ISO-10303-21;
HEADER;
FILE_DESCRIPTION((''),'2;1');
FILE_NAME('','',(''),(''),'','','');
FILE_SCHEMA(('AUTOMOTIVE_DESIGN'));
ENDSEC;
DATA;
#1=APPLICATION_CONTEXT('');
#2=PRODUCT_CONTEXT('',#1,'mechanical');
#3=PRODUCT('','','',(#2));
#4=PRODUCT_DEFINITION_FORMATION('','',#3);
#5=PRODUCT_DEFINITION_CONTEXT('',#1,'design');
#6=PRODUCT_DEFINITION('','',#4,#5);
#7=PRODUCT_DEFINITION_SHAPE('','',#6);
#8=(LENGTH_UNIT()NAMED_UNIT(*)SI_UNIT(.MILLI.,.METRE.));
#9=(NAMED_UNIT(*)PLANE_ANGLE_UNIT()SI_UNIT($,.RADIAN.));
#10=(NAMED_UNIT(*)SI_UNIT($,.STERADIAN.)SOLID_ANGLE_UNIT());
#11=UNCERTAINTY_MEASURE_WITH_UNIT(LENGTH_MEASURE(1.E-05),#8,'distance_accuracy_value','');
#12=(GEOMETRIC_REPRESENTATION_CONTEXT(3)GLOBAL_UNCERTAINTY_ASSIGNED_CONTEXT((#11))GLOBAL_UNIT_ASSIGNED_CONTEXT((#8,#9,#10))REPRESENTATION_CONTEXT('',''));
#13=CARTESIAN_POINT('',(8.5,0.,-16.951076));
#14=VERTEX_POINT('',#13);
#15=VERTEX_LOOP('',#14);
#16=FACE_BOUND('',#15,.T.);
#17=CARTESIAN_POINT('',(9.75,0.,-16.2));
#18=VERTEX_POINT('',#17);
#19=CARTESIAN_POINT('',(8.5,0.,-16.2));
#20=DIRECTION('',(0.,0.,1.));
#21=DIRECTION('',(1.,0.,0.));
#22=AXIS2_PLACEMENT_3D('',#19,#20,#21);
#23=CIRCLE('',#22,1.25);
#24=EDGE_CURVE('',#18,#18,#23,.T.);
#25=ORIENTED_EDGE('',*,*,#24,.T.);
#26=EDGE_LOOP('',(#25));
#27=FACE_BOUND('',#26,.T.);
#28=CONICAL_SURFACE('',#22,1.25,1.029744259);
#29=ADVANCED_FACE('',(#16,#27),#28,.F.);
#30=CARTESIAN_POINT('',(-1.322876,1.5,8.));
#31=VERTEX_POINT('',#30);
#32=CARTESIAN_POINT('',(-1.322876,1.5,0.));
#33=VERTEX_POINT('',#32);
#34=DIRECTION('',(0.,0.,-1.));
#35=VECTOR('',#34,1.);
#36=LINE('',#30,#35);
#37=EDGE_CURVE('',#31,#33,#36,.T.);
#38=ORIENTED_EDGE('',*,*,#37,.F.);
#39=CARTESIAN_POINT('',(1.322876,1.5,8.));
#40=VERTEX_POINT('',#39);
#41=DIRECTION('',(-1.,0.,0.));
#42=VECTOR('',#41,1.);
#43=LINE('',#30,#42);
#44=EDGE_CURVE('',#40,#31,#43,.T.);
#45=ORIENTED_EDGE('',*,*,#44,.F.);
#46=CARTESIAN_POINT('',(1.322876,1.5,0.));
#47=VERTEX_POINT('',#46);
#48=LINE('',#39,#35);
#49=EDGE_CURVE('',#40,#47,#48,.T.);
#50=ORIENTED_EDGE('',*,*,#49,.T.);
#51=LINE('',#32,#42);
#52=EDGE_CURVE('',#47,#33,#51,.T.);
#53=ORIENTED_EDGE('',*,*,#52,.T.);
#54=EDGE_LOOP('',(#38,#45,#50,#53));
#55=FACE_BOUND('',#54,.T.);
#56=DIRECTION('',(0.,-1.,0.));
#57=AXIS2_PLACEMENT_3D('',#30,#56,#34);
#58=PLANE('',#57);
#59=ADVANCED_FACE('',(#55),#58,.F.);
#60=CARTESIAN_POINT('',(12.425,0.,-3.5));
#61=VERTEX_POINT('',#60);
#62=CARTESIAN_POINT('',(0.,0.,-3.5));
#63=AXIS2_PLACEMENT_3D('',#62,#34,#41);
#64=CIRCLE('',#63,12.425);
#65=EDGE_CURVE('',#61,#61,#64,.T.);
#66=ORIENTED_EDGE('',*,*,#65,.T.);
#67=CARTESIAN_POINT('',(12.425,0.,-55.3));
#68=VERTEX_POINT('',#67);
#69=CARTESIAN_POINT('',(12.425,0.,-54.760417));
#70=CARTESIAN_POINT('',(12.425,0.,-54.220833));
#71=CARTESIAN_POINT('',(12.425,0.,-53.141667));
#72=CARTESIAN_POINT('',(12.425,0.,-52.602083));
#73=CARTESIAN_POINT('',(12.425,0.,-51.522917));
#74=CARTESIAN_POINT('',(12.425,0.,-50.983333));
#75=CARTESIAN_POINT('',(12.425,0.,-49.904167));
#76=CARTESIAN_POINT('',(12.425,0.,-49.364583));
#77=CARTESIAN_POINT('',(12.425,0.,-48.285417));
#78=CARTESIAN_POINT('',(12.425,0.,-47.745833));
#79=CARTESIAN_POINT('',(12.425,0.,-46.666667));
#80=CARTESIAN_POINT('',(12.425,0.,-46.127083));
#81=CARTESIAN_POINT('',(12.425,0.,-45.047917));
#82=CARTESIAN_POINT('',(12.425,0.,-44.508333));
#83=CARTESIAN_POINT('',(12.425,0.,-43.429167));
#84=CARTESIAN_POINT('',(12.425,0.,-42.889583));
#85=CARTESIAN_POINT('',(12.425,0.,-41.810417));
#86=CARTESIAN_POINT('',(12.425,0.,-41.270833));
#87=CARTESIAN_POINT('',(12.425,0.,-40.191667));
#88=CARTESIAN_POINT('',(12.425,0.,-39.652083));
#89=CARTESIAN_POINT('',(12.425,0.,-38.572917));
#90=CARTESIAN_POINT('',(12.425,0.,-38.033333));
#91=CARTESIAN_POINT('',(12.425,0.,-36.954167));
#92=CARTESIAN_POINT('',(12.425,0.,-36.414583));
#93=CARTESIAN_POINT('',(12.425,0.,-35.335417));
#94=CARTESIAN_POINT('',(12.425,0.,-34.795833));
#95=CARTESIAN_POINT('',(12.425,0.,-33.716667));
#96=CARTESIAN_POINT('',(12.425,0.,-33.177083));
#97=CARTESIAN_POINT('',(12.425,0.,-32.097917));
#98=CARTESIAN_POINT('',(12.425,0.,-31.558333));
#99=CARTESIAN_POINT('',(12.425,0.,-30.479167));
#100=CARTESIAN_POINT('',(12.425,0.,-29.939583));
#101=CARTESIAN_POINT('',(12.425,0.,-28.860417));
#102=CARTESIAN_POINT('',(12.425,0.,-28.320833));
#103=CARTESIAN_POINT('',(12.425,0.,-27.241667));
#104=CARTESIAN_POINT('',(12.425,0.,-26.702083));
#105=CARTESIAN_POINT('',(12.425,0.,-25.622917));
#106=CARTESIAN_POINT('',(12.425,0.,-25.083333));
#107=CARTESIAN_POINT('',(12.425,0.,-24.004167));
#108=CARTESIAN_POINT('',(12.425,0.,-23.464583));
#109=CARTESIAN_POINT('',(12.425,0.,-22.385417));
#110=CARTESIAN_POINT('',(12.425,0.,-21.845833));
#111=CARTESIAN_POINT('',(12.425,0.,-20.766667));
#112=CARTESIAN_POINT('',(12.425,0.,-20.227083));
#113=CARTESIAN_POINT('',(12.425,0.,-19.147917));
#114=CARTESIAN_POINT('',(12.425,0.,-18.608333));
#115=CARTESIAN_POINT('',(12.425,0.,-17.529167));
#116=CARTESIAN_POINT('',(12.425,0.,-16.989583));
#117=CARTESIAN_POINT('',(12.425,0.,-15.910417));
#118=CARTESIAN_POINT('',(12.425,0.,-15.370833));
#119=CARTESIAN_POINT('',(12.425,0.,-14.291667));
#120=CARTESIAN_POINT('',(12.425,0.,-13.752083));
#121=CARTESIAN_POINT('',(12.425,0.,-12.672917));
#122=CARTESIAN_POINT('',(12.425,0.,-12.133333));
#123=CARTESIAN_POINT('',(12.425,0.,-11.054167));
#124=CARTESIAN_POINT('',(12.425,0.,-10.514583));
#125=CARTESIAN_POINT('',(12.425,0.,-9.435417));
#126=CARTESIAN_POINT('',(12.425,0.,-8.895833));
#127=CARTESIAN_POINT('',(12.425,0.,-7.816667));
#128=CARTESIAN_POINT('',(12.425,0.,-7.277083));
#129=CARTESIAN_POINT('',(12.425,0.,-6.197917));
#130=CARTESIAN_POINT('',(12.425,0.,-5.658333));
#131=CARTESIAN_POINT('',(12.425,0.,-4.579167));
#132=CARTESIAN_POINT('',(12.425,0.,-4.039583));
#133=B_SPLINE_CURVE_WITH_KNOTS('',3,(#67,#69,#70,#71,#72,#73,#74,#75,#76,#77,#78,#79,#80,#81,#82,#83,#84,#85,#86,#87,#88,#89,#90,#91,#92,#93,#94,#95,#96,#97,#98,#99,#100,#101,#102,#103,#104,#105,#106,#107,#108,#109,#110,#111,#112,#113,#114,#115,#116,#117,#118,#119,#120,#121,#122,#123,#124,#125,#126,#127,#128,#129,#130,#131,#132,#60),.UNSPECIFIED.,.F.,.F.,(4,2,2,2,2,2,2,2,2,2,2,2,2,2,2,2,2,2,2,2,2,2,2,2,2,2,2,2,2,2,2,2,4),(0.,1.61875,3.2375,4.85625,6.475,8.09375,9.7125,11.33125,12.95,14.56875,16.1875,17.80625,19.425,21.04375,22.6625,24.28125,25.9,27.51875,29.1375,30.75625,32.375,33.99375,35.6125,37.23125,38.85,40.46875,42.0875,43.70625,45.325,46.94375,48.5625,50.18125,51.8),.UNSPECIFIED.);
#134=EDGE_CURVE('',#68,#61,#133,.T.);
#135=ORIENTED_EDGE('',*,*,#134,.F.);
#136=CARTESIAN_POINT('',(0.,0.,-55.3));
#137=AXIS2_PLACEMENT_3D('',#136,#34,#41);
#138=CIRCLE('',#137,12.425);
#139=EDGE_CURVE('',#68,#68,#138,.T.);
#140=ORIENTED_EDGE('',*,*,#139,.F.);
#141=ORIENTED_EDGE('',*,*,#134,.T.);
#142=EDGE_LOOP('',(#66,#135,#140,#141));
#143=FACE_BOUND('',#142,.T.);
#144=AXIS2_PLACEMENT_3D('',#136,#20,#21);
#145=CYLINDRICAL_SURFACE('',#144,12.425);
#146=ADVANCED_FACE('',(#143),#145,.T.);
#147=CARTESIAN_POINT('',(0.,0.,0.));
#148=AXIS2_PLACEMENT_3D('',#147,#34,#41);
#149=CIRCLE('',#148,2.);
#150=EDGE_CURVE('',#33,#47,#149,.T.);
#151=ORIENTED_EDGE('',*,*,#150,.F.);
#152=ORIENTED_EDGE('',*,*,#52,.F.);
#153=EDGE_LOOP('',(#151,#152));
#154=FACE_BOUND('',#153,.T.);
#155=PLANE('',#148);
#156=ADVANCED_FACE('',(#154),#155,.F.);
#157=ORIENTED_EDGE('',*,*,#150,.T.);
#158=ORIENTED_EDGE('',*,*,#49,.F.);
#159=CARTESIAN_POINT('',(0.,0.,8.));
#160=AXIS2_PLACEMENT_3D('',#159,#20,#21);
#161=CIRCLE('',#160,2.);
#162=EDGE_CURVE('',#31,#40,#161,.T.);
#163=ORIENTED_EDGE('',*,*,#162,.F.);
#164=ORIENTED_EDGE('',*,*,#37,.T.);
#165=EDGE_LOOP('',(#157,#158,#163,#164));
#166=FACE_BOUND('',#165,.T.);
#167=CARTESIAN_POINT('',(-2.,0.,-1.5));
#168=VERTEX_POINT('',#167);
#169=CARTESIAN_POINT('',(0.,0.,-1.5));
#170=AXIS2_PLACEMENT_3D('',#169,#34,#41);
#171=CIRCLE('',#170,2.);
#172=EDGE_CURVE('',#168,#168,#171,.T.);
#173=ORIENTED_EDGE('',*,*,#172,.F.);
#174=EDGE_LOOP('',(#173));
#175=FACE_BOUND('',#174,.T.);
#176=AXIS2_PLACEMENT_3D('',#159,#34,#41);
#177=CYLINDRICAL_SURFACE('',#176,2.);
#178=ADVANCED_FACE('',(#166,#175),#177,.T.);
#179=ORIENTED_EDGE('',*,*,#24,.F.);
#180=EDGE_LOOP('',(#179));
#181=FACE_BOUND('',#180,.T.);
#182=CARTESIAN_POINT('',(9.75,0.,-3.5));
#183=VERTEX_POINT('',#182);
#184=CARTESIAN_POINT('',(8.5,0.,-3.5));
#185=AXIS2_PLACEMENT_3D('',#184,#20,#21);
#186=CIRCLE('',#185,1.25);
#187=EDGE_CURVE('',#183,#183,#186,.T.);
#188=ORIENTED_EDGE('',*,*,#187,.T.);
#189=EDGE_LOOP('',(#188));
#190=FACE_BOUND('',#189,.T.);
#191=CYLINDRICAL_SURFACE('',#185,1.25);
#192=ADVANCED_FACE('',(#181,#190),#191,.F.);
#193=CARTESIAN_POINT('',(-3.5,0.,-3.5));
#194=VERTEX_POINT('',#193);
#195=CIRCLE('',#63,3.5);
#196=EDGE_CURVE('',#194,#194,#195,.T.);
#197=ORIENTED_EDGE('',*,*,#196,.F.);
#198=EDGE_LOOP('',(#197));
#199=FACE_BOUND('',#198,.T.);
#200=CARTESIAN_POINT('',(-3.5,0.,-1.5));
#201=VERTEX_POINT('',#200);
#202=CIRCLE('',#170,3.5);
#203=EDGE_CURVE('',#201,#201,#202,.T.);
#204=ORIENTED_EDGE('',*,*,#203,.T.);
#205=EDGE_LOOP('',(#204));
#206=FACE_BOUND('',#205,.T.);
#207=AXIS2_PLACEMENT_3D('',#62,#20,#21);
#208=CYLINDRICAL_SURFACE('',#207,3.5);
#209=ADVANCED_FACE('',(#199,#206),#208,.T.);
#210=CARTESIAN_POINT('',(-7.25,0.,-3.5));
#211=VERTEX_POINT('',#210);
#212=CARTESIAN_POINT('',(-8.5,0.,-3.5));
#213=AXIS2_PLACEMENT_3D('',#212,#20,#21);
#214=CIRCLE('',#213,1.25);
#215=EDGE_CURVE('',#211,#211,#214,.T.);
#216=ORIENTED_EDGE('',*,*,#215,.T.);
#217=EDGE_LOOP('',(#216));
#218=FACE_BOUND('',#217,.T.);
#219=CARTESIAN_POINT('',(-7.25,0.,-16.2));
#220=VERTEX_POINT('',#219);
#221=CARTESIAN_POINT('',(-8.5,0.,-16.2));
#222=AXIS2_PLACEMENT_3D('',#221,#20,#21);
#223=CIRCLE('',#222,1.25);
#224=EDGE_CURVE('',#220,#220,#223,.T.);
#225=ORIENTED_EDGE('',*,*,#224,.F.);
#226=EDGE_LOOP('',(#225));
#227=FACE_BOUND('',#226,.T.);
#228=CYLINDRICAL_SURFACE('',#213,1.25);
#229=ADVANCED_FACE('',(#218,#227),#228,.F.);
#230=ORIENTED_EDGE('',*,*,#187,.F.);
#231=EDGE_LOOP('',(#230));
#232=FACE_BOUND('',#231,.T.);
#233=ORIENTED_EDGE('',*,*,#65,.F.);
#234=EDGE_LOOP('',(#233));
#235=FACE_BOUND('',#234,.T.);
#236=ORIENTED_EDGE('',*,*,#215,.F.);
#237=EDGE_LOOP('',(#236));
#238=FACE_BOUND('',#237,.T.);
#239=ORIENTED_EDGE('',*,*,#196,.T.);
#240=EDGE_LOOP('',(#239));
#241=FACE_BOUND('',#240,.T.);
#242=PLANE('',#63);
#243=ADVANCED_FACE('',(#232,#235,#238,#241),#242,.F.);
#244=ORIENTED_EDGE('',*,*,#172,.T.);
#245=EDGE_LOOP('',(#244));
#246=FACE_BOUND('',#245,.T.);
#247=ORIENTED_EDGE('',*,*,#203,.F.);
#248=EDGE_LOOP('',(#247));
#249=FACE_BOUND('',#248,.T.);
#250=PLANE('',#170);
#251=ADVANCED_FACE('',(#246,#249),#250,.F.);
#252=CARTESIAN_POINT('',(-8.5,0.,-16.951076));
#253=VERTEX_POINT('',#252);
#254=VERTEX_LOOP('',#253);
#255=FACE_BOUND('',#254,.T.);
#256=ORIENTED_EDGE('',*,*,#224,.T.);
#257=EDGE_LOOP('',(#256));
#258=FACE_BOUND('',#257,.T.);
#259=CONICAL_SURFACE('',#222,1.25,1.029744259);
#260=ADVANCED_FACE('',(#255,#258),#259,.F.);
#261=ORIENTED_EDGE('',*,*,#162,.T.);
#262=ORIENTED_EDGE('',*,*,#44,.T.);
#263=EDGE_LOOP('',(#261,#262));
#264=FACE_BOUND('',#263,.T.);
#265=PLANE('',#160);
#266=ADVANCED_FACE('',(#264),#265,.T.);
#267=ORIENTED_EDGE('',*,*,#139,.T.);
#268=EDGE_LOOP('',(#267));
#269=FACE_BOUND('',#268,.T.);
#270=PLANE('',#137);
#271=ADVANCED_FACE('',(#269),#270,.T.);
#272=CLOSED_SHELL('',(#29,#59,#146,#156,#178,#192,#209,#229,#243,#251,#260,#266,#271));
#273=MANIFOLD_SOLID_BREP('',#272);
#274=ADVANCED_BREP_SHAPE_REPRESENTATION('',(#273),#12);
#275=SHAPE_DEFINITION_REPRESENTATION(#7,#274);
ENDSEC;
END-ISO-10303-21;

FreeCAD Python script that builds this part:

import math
import FreeCAD as App
import Part
import Sketcher

V = App.Vector

doc = App.newDocument("Part")
body = doc.addObject("PartDesign::Body", "Body")

# Sketch on XY plane
sketch1 = body.newObject("Sketcher::SketchObject", "Sketch")
sketch1.AttachmentSupport = (doc.getObject("XY_Plane"), [""])
sketch1.MapMode = "FlatFace"
sketch1.addGeometry([
    Part.LineSegment(V(1.3, 1.5, 0), V(-1.3, 1.5, 0)),
    Part.ArcOfCircle(Part.Circle(V(0, 0, 0), V(0, 0, 1), 2), math.radians(131), math.radians(409)),
], False)
sketch1.addConstraint([
    Sketcher.Constraint("Coincident", 0, 1, 1, 2),
    Sketcher.Constraint("Coincident", 1, 1, 0, 2),
    Sketcher.Constraint("Horizontal", 0),
    Sketcher.Constraint("Coincident", 1, 3, -1, 1),
    Sketcher.Constraint("Radius", 1, 2.0),
    Sketcher.Constraint("DistanceY", -1, 1, 0, 1, 1.5),
])
pad1 = body.newObject("PartDesign::Pad", "Pad")
pad1.Profile = sketch1
pad1.Length = 8

# Sketch on XY plane
sketch2 = body.newObject("Sketcher::SketchObject", "Sketch001")
sketch2.AttachmentSupport = (doc.getObject("XY_Plane"), [""])
sketch2.MapMode = "FlatFace"
sketch2.AttachmentOffset = App.Placement(V(0, 0, -1.5), App.Rotation())
sketch2.addGeometry(Part.Circle(V(0, 0, 0), V(0, 0, 1), 2), False)
sketch2.addConstraint([
    Sketcher.Constraint("Coincident", 0, 3, -1, 1),
    Sketcher.Constraint("Diameter", 0, 4.0),
])
pad2 = body.newObject("PartDesign::Pad", "Pad001")
pad2.Profile = sketch2
pad2.Length = 1.5

# Sketch on XY plane
sketch3 = body.newObject("Sketcher::SketchObject", "Sketch002")
sketch3.AttachmentSupport = (doc.getObject("XY_Plane"), [""])
sketch3.MapMode = "FlatFace"
sketch3.AttachmentOffset = App.Placement(V(0, 0, -1.5), App.Rotation())
sketch3.addGeometry(Part.Circle(V(0, 0, 0), V(0, 0, 1), 3.5), False)
sketch3.addConstraint([
    Sketcher.Constraint("Coincident", 0, 3, -1, 1),
    Sketcher.Constraint("Diameter", 0, 7.0),
])
pad3 = body.newObject("PartDesign::Pad", "Pad002")
pad3.Profile = sketch3
pad3.Length = 2
pad3.Reversed = True

# Sketch on XY plane
sketch4 = body.newObject("Sketcher::SketchObject", "Sketch003")
sketch4.AttachmentSupport = (doc.getObject("XY_Plane"), [""])
sketch4.MapMode = "FlatFace"
sketch4.AttachmentOffset = App.Placement(V(0, 0, -3.5), App.Rotation())
sketch4.addGeometry(Part.Circle(V(0, 0, 0), V(0, 0, 1), 12), False)
sketch4.addConstraint([
    Sketcher.Constraint("Coincident", 0, 3, -1, 1),
    Sketcher.Constraint("Diameter", 0, 24.85),
])
pad4 = body.newObject("PartDesign::Pad", "Pad003")
pad4.Profile = sketch4
pad4.Length = 51.8
pad4.Reversed = True

# Sketch on XY plane
sketch5 = body.newObject("Sketcher::SketchObject", "Sketch004")
sketch5.AttachmentSupport = (doc.getObject("XY_Plane"), [""])
sketch5.MapMode = "FlatFace"
sketch5.AttachmentOffset = App.Placement(V(0, 0, -3.5), App.Rotation())
sketch5.addGeometry([
    Part.Circle(V(8.5, 0, 0), V(0, 0, 1), 1.2),
    Part.Circle(V(-8.5, 0, 0), V(0, 0, 1), 1.2),
], False)
sketch5.addConstraint([
    Sketcher.Constraint("Equal", 0, 1),
    Sketcher.Constraint("Symmetric", 0, 3, 1, 3, -1, 1),
    Sketcher.Constraint("PointOnObject", 0, 3, -1),
    Sketcher.Constraint("Diameter", 0, 2.5),
    Sketcher.Constraint("DistanceX", 1, 3, 0, 3, 17.0),
])
doc.recompute()
hole = body.newObject("PartDesign::Hole", "Hole")
hole.Profile = sketch5
hole.ThreadType = "None"
hole.Diameter = 2.5
hole.DepthType = "Dimension"
hole.Depth = 12.7
hole.DrillPoint = "Angled"
hole.DrillPointAngle = 118

doc.recompute()
